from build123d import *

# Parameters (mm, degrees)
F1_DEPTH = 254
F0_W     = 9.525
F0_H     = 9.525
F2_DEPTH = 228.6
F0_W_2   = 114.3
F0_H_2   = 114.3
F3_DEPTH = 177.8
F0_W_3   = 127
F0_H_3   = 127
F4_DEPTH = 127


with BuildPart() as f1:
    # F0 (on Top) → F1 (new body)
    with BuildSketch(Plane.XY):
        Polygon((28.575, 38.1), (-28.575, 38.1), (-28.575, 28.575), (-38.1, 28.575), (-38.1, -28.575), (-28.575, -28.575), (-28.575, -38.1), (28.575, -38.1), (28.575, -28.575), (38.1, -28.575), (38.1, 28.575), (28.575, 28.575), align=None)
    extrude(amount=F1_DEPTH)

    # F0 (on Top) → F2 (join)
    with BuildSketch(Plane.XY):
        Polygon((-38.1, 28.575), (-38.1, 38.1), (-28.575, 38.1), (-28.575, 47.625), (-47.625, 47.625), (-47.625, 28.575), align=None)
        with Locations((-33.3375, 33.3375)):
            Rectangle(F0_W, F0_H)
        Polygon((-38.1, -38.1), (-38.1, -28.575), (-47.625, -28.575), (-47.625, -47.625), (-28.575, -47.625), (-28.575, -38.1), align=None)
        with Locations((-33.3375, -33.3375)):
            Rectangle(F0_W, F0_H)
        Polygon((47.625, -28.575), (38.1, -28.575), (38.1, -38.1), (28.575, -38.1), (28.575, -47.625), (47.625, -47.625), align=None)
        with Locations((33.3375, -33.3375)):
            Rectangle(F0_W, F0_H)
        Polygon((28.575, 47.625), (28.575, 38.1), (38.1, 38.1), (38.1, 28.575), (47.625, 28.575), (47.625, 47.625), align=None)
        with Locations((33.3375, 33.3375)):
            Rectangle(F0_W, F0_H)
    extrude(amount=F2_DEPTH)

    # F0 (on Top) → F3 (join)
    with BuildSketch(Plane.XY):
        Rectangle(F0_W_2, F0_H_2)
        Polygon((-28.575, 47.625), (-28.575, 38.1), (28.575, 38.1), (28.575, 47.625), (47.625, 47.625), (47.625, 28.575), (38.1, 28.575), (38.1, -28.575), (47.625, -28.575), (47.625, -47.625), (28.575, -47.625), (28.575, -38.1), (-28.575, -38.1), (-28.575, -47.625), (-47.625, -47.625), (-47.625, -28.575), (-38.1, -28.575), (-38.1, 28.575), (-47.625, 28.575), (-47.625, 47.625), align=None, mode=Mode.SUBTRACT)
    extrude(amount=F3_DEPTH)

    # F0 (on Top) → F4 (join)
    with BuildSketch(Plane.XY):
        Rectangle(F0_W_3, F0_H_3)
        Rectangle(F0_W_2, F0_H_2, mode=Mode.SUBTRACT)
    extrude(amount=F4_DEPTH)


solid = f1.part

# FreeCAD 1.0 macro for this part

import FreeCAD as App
import Part
import Sketcher
from FreeCAD import Vector
Q = App.Units.Quantity

doc = App.newDocument("Part")
body = doc.addObject("PartDesign::Body", "Body")

# Sketch on XY plane
sketch1 = doc.addObject("Sketcher::SketchObject", "Sketch")
body.addObject(sketch1)
sketch1.AttachmentSupport = (doc.XY_Plane, [""])
sketch1.MapMode = "FlatFace"
sketch1.addGeometry([
    Part.LineSegment(Vector(29, 38, 0), Vector(-29, 38, 0)),  # 0
    Part.LineSegment(Vector(-29, 38, 0), Vector(-29, 29, 0)),  # 1
    Part.LineSegment(Vector(-29, 29, 0), Vector(-38, 29, 0)),  # 2
    Part.LineSegment(Vector(-38, 29, 0), Vector(-38, -29, 0)),  # 3
    Part.LineSegment(Vector(-38, -29, 0), Vector(-29, -29, 0)),  # 4
    Part.LineSegment(Vector(-29, -29, 0), Vector(-29, -38, 0)),  # 5
    Part.LineSegment(Vector(-29, -38, 0), Vector(29, -38, 0)),  # 6
    Part.LineSegment(Vector(29, -38, 0), Vector(29, -29, 0)),  # 7
    Part.LineSegment(Vector(29, -29, 0), Vector(38, -29, 0)),  # 8
    Part.LineSegment(Vector(38, -29, 0), Vector(38, 29, 0)),  # 9
    Part.LineSegment(Vector(38, 29, 0), Vector(29, 29, 0)),  # 10
    Part.LineSegment(Vector(29, 29, 0), Vector(29, 38, 0)),  # 11
], False)
sketch1.addConstraint([
    Sketcher.Constraint("Coincident", 0, 2, 1, 1),
    Sketcher.Constraint("Coincident", 1, 2, 2, 1),
    Sketcher.Constraint("Coincident", 2, 2, 3, 1),
    Sketcher.Constraint("Coincident", 3, 2, 4, 1),
    Sketcher.Constraint("Coincident", 4, 2, 5, 1),
    Sketcher.Constraint("Coincident", 5, 2, 6, 1),
    Sketcher.Constraint("Coincident", 6, 2, 7, 1),
    Sketcher.Constraint("Coincident", 7, 2, 8, 1),
    Sketcher.Constraint("Coincident", 8, 2, 9, 1),
    Sketcher.Constraint("Coincident", 9, 2, 10, 1),
    Sketcher.Constraint("Coincident", 10, 2, 11, 1),
    Sketcher.Constraint("Coincident", 11, 2, 0, 1),
    Sketcher.Constraint("Horizontal", 0),
    Sketcher.Constraint("Vertical", 1),
    Sketcher.Constraint("Horizontal", 2),
    Sketcher.Constraint("Vertical", 3),
    Sketcher.Constraint("Horizontal", 4),
    Sketcher.Constraint("Vertical", 5),
    Sketcher.Constraint("Horizontal", 6),
    Sketcher.Constraint("Vertical", 7),
    Sketcher.Constraint("Horizontal", 8),
    Sketcher.Constraint("Vertical", 9),
    Sketcher.Constraint("Horizontal", 10),
    Sketcher.Constraint("Vertical", 11),
    Sketcher.Constraint("Symmetric", 0, 2, 6, 2, -1, 1),
    Sketcher.Constraint("Symmetric", 2, 2, 8, 2, -1, 1),
    Sketcher.Constraint("Symmetric", 4, 2, 10, 2, -1, 1),
    Sketcher.Constraint("Symmetric", 4, 2, 7, 2, -2),
    Sketcher.Constraint("Equal", 10, 1),
    Sketcher.Constraint("Equal", 6, 3),
    Sketcher.Constraint("DistanceY", 5, 2, 0, 2, Q("3 in")),
    Sketcher.Constraint("DistanceX", 0, 2, 0, 1, Q("2.25 in")),
])
pad1 = doc.addObject("PartDesign::Pad", "Pad")
body.addObject(pad1)
pad1.Profile = sketch1
pad1.Length = Q("10 in")

# Sketch on XY plane
sketch2 = doc.addObject("Sketcher::SketchObject", "Sketch001")
body.addObject(sketch2)
sketch2.AttachmentSupport = (doc.XY_Plane, [""])
sketch2.MapMode = "FlatFace"
sketch2.addGeometry([
    Part.LineSegment(Vector(-29, 48, 0), Vector(-48, 48, 0)),  # 0
    Part.LineSegment(Vector(-48, 48, 0), Vector(-48, 29, 0)),  # 1
    Part.LineSegment(Vector(-48, 29, 0), Vector(-29, 29, 0)),  # 2
    Part.LineSegment(Vector(-29, 29, 0), Vector(-29, 48, 0)),  # 3
    Part.LineSegment(Vector(-48, -29, 0), Vector(-48, -48, 0)),  # 4
    Part.LineSegment(Vector(-48, -48, 0), Vector(-29, -48, 0)),  # 5
    Part.LineSegment(Vector(-29, -48, 0), Vector(-29, -29, 0)),  # 6
    Part.LineSegment(Vector(-29, -29, 0), Vector(-48, -29, 0)),  # 7
    Part.LineSegment(Vector(48, -29, 0), Vector(29, -29, 0)),  # 8
    Part.LineSegment(Vector(29, -29, 0), Vector(29, -48, 0)),  # 9
    Part.LineSegment(Vector(29, -48, 0), Vector(48, -48, 0)),  # 10
    Part.LineSegment(Vector(48, -48, 0), Vector(48, -29, 0)),  # 11
    Part.LineSegment(Vector(29, 48, 0), Vector(29, 29, 0)),  # 12
    Part.LineSegment(Vector(29, 29, 0), Vector(48, 29, 0)),  # 13
    Part.LineSegment(Vector(48, 29, 0), Vector(48, 48, 0)),  # 14
    Part.LineSegment(Vector(48, 48, 0), Vector(29, 48, 0)),  # 15
], False)
sketch2.addConstraint([
    Sketcher.Constraint("Coincident", 0, 2, 1, 1),
    Sketcher.Constraint("Coincident", 1, 2, 2, 1),
    Sketcher.Constraint("Coincident", 2, 2, 3, 1),
    Sketcher.Constraint("Coincident", 3, 2, 0, 1),
    Sketcher.Constraint("Coincident", 4, 2, 5, 1),
    Sketcher.Constraint("Coincident", 5, 2, 6, 1),
    Sketcher.Constraint("Coincident", 6, 2, 7, 1),
    Sketcher.Constraint("Coincident", 7, 2, 4, 1),
    Sketcher.Constraint("Coincident", 8, 2, 9, 1),
    Sketcher.Constraint("Coincident", 9, 2, 10, 1),
    Sketcher.Constraint("Coincident", 10, 2, 11, 1),
    Sketcher.Constraint("Coincident", 11, 2, 8, 1),
    Sketcher.Constraint("Coincident", 12, 2, 13, 1),
    Sketcher.Constraint("Coincident", 13, 2, 14, 1),
    Sketcher.Constraint("Coincident", 14, 2, 15, 1),
    Sketcher.Constraint("Coincident", 15, 2, 12, 1),
    Sketcher.Constraint("Horizontal", 0),
    Sketcher.Constraint("Vertical", 1),
    Sketcher.Constraint("Horizontal", 2),
    Sketcher.Constraint("Vertical", 3),
    Sketcher.Constraint("Vertical", 4),
    Sketcher.Constraint("Horizontal", 5),
    Sketcher.Constraint("Vertical", 6),
    Sketcher.Constraint("Horizontal", 7),
    Sketcher.Constraint("Horizontal", 8),
    Sketcher.Constraint("Vertical", 9),
    Sketcher.Constraint("Horizontal", 10),
    Sketcher.Constraint("Vertical", 11),
    Sketcher.Constraint("Vertical", 12),
    Sketcher.Constraint("Horizontal", 13),
    Sketcher.Constraint("Vertical", 14),
    Sketcher.Constraint("Horizontal", 15),
    Sketcher.Constraint("Symmetric", 2, 2, 8, 2, -1, 1),
    Sketcher.Constraint("Symmetric", 0, 2, 10, 2, -1, 1),
    Sketcher.Constraint("Symmetric", 6, 2, 12, 2, -1, 1),
    Sketcher.Constraint("Symmetric", 4, 2, 14, 2, -1, 1),
    Sketcher.Constraint("Symmetric", 6, 2, 8, 2, -2),
    Sketcher.Constraint("Symmetric", 4, 2, 10, 2, -2),
    Sketcher.Constraint("Equal", 15, 1),
    Sketcher.Constraint("DistanceY", 4, 2, 1, 2, Q("3 in")),
    Sketcher.Constraint("DistanceX", 7, 2, 8, 2, Q("3 in")),
    Sketcher.Constraint("DistanceX", 0, 2, 0, 1, Q("0.75 in")),
])
pad2 = doc.addObject("PartDesign::Pad", "Pad001")
body.addObject(pad2)
pad2.Profile = sketch2
pad2.Length = Q("9 in")

# Sketch on XY plane
sketch3 = doc.addObject("Sketcher::SketchObject", "Sketch002")
body.addObject(sketch3)
sketch3.AttachmentSupport = (doc.XY_Plane, [""])
sketch3.MapMode = "FlatFace"
sketch3.addGeometry([
    Part.LineSegment(Vector(-57, 57, 0), Vector(-57, -57, 0)),  # 0
    Part.LineSegment(Vector(-57, -57, 0), Vector(57, -57, 0)),  # 1
    Part.LineSegment(Vector(57, -57, 0), Vector(57, 57, 0)),  # 2
    Part.LineSegment(Vector(57, 57, 0), Vector(-57, 57, 0)),  # 3
    Part.LineSegment(Vector(-48, 48, 0), Vector(-29, 48, 0)),  # 4
    Part.LineSegment(Vector(-29, 48, 0), Vector(-29, 38, 0)),  # 5
    Part.LineSegment(Vector(-29, 38, 0), Vector(29, 38, 0)),  # 6
    Part.LineSegment(Vector(29, 38, 0), Vector(29, 48, 0)),  # 7
    Part.LineSegment(Vector(29, 48, 0), Vector(48, 48, 0)),  # 8
    Part.LineSegment(Vector(48, 48, 0), Vector(48, 29, 0)),  # 9
    Part.LineSegment(Vector(48, 29, 0), Vector(38, 29, 0)),  # 10
    Part.LineSegment(Vector(38, 29, 0), Vector(38, -29, 0)),  # 11
    Part.LineSegment(Vector(38, -29, 0), Vector(48, -29, 0)),  # 12
    Part.LineSegment(Vector(48, -29, 0), Vector(48, -48, 0)),  # 13
    Part.LineSegment(Vector(48, -48, 0), Vector(29, -48, 0)),  # 14
    Part.LineSegment(Vector(29, -48, 0), Vector(29, -38, 0)),  # 15
    Part.LineSegment(Vector(29, -38, 0), Vector(-29, -38, 0)),  # 16
    Part.LineSegment(Vector(-29, -38, 0), Vector(-29, -48, 0)),  # 17
    Part.LineSegment(Vector(-29, -48, 0), Vector(-48, -48, 0)),  # 18
    Part.LineSegment(Vector(-48, -48, 0), Vector(-48, -29, 0)),  # 19
    Part.LineSegment(Vector(-48, -29, 0), Vector(-38, -29, 0)),  # 20
    Part.LineSegment(Vector(-38, -29, 0), Vector(-38, 29, 0)),  # 21
    Part.LineSegment(Vector(-38, 29, 0), Vector(-48, 29, 0)),  # 22
    Part.LineSegment(Vector(-48, 29, 0), Vector(-48, 48, 0)),  # 23
], False)
sketch3.addConstraint([
    Sketcher.Constraint("Coincident", 0, 2, 1, 1),
    Sketcher.Constraint("Coincident", 1, 2, 2, 1),
    Sketcher.Constraint("Coincident", 2, 2, 3, 1),
    Sketcher.Constraint("Coincident", 3, 2, 0, 1),
    Sketcher.Constraint("Coincident", 4, 2, 5, 1),
    Sketcher.Constraint("Coincident", 5, 2, 6, 1),
    Sketcher.Constraint("Coincident", 6, 2, 7, 1),
    Sketcher.Constraint("Coincident", 7, 2, 8, 1),
    Sketcher.Constraint("Coincident", 8, 2, 9, 1),
    Sketcher.Constraint("Coincident", 9, 2, 10, 1),
    Sketcher.Constraint("Coincident", 10, 2, 11, 1),
    Sketcher.Constraint("Coincident", 11, 2, 12, 1),
    Sketcher.Constraint("Coincident", 12, 2, 13, 1),
    Sketcher.Constraint("Coincident", 13, 2, 14, 1),
    Sketcher.Constraint("Coincident", 14, 2, 15, 1),
    Sketcher.Constraint("Coincident", 15, 2, 16, 1),
    Sketcher.Constraint("Coincident", 16, 2, 17, 1),
    Sketcher.Constraint("Coincident", 17, 2, 18, 1),
    Sketcher.Constraint("Coincident", 18, 2, 19, 1),
    Sketcher.Constraint("Coincident", 19, 2, 20, 1),
    Sketcher.Constraint("Coincident", 20, 2, 21, 1),
    Sketcher.Constraint("Coincident", 21, 2, 22, 1),
    Sketcher.Constraint("Coincident", 22, 2, 23, 1),
    Sketcher.Constraint("Coincident", 23, 2, 4, 1),
    Sketcher.Constraint("Vertical", 0),
    Sketcher.Constraint("Horizontal", 1),
    Sketcher.Constraint("Vertical", 2),
    Sketcher.Constraint("Horizontal", 3),
    Sketcher.Constraint("Horizontal", 4),
    Sketcher.Constraint("Vertical", 5),
    Sketcher.Constraint("Horizontal", 6),
    Sketcher.Constraint("Vertical", 7),
    Sketcher.Constraint("Horizontal", 8),
    Sketcher.Constraint("Vertical", 9),
    Sketcher.Constraint("Horizontal", 10),
    Sketcher.Constraint("Vertical", 11),
    Sketcher.Constraint("Horizontal", 12),
    Sketcher.Constraint("Vertical", 13),
    Sketcher.Constraint("Horizontal", 14),
    Sketcher.Constraint("Vertical", 15),
    Sketcher.Constraint("Horizontal", 16),
    Sketcher.Constraint("Vertical", 17),
    Sketcher.Constraint("Horizontal", 18),
    Sketcher.Constraint("Vertical", 19),
    Sketcher.Constraint("Horizontal", 20),
    Sketcher.Constraint("Vertical", 21),
    Sketcher.Constraint("Horizontal", 22),
    Sketcher.Constraint("Vertical", 23),
    Sketcher.Constraint("Symmetric", 0, 2, 2, 2, -1, 1),
    Sketcher.Constraint("Symmetric", 4, 2, 14, 2, -1, 1),
    Sketcher.Constraint("Symmetric", 6, 2, 16, 2, -1, 1),
    Sketcher.Constraint("Symmetric", 8, 2, 18, 2, -1, 1),
    Sketcher.Constraint("Symmetric", 10, 2, 20, 2, -1, 1),
    Sketcher.Constraint("Symmetric", 12, 2, 22, 2, -1, 1),
    Sketcher.Constraint("Symmetric", 4, 2, 7, 2, -2),
    Sketcher.Constraint("Symmetric", 12, 2, 19, 2, -2),
    Sketcher.Constraint("Equal", 3, 0),
    Sketcher.Constraint("Equal", 22, 5),
    Sketcher.Constraint("Equal", 18, 9),
    Sketcher.Constraint("Equal", 16, 11),
    Sketcher.Constraint("DistanceX", 1, 1, 1, 2, Q("4.5 in")),
    Sketcher.Constraint("DistanceX", 4, 2, 8, 2, Q("3 in")),
    Sketcher.Constraint("DistanceY", 16, 2, 5, 2, Q("3 in")),
    Sketcher.Constraint("DistanceX", 4, 1, 4, 2, Q("0.75 in")),
])
pad3 = doc.addObject("PartDesign::Pad", "Pad002")
body.addObject(pad3)
pad3.Profile = sketch3
pad3.Length = Q("7 in")

# Sketch on XY plane
sketch4 = doc.addObject("Sketcher::SketchObject", "Sketch003")
body.addObject(sketch4)
sketch4.AttachmentSupport = (doc.XY_Plane, [""])
sketch4.MapMode = "FlatFace"
sketch4.addGeometry([
    Part.LineSegment(Vector(-64, 64, 0), Vector(-64, -64, 0)),  # 0
    Part.LineSegment(Vector(-64, -64, 0), Vector(64, -64, 0)),  # 1
    Part.LineSegment(Vector(64, -64, 0), Vector(64, 64, 0)),  # 2
    Part.LineSegment(Vector(64, 64, 0), Vector(-64, 64, 0)),  # 3
    Part.LineSegment(Vector(57, -57, 0), Vector(-57, -57, 0)),  # 4
    Part.LineSegment(Vector(-57, -57, 0), Vector(-57, 57, 0)),  # 5
    Part.LineSegment(Vector(-57, 57, 0), Vector(57, 57, 0)),  # 6
    Part.LineSegment(Vector(57, 57, 0), Vector(57, -57, 0)),  # 7
], False)
sketch4.addConstraint([
    Sketcher.Constraint("Coincident", 0, 2, 1, 1),
    Sketcher.Constraint("Coincident", 1, 2, 2, 1),
    Sketcher.Constraint("Coincident", 2, 2, 3, 1),
    Sketcher.Constraint("Coincident", 3, 2, 0, 1),
    Sketcher.Constraint("Coincident", 4, 2, 5, 1),
    Sketcher.Constraint("Coincident", 5, 2, 6, 1),
    Sketcher.Constraint("Coincident", 6, 2, 7, 1),
    Sketcher.Constraint("Coincident", 7, 2, 4, 1),
    Sketcher.Constraint("Vertical", 0),
    Sketcher.Constraint("Horizontal", 1),
    Sketcher.Constraint("Vertical", 2),
    Sketcher.Constraint("Horizontal", 3),
    Sketcher.Constraint("Horizontal", 4),
    Sketcher.Constraint("Vertical", 5),
    Sketcher.Constraint("Horizontal", 6),
    Sketcher.Constraint("Vertical", 7),
    Sketcher.Constraint("Symmetric", 0, 2, 2, 2, -1, 1),
    Sketcher.Constraint("Symmetric", 4, 2, 6, 2, -1, 1),
    Sketcher.Constraint("Equal", 3, 0),
    Sketcher.Constraint("Equal", 6, 5),
    Sketcher.Constraint("DistanceX", 1, 1, 1, 2, Q("5 in")),
    Sketcher.Constraint("DistanceX", 4, 2, 4, 1, Q("4.5 in")),
])
pad4 = doc.addObject("PartDesign::Pad", "Pad003")
body.addObject(pad4)
pad4.Profile = sketch4
pad4.Length = Q("5 in")

doc.recompute()
